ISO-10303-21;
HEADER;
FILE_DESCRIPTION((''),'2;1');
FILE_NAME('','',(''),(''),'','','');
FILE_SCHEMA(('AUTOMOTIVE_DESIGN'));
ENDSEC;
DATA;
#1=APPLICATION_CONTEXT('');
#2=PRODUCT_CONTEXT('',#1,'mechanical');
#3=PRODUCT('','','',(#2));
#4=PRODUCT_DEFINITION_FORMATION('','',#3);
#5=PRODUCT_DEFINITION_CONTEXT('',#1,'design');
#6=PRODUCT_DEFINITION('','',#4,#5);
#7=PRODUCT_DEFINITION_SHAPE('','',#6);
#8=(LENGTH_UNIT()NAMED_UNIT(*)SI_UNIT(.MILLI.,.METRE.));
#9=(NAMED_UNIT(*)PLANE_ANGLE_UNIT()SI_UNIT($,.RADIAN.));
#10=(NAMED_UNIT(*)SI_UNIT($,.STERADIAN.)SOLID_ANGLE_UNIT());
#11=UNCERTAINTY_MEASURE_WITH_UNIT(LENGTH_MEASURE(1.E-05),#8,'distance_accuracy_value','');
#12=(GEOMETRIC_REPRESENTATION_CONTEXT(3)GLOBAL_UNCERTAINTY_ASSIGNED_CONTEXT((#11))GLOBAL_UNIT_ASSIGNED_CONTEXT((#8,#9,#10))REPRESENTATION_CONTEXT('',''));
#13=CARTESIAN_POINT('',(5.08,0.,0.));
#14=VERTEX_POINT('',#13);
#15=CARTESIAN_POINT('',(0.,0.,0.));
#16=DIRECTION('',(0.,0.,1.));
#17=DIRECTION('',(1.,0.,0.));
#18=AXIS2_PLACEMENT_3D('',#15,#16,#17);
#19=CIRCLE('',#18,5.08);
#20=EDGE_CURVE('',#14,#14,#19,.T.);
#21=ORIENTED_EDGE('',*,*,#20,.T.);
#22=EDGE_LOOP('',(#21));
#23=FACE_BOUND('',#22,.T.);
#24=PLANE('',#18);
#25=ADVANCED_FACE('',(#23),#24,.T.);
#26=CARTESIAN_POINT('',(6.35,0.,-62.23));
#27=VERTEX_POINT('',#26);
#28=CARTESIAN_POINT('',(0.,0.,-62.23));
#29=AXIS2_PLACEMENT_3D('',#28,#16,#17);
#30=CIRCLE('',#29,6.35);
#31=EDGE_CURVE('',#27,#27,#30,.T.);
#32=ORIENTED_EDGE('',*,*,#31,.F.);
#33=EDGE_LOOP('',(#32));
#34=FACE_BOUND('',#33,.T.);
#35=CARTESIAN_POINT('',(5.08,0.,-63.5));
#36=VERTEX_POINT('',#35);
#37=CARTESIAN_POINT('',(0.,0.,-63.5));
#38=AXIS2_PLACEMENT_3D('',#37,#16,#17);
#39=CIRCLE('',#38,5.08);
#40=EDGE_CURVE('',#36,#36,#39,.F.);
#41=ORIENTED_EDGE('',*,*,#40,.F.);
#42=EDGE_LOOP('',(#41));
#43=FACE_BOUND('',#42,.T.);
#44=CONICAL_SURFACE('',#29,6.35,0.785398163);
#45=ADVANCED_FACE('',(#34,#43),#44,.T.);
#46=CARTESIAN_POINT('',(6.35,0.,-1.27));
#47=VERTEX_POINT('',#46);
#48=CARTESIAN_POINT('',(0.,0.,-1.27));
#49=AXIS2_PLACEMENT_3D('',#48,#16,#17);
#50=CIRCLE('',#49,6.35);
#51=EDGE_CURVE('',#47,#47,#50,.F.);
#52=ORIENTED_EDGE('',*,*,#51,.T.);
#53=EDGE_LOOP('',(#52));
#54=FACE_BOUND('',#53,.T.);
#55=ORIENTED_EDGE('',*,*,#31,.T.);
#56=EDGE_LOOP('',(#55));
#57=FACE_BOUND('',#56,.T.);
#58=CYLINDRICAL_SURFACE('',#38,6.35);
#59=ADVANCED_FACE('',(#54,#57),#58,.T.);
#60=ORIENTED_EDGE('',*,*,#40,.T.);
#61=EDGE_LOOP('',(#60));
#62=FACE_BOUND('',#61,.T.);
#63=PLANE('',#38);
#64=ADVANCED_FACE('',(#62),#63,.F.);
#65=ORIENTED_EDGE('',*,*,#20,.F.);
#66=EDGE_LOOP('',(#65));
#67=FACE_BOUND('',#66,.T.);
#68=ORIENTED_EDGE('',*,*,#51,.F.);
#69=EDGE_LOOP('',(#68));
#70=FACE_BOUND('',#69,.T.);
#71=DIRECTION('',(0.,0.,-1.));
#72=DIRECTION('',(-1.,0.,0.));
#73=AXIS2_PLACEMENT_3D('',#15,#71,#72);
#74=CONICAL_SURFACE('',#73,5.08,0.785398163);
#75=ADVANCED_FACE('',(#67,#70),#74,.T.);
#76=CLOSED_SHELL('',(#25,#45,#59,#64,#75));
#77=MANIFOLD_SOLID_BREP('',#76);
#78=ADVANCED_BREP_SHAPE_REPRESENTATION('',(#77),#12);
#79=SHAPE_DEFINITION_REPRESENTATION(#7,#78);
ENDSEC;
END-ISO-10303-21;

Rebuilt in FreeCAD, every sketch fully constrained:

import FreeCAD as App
import Part
import Sketcher

V = App.Vector
Q = App.Units.Quantity


def edges_at(feature, points):
    """Names of the edges that pass closest to the given points."""
    edges = feature.Shape.Edges
    near = lambda p: min(range(len(edges)), key=lambda i: edges[i].distToShape(Part.Vertex(*p))[0])
    return sorted({f"Edge{near(p) + 1}" for p in points})

doc = App.newDocument("Part")
body = doc.addObject("PartDesign::Body", "Body")

# Sketch on XY plane
sketch1 = body.newObject("Sketcher::SketchObject", "Sketch")
sketch1.AttachmentSupport = (doc.getObject("XY_Plane"), [""])
sketch1.MapMode = "FlatFace"
sketch1.addGeometry(Part.Circle(V(0, 0, 0), V(0, 0, 1), 6), False)
sketch1.addConstraint([
    Sketcher.Constraint("Coincident", 0, 3, -1, 1),
    Sketcher.Constraint("Diameter", 0, Q("0.5 in")),
])
pad1 = body.newObject("PartDesign::Pad", "Pad")
pad1.Profile = sketch1
pad1.Length = Q("2.5 in")
pad1.Reversed = True
doc.recompute()

chamfer = body.newObject("PartDesign::Chamfer", "Chamfer")
chamfer.Base = (pad1, edges_at(pad1, [(-6.35, 0, 0), (-6.35, 0, -63.5)]))
chamfer.Size = Q("0.05 in")

doc.recompute()
